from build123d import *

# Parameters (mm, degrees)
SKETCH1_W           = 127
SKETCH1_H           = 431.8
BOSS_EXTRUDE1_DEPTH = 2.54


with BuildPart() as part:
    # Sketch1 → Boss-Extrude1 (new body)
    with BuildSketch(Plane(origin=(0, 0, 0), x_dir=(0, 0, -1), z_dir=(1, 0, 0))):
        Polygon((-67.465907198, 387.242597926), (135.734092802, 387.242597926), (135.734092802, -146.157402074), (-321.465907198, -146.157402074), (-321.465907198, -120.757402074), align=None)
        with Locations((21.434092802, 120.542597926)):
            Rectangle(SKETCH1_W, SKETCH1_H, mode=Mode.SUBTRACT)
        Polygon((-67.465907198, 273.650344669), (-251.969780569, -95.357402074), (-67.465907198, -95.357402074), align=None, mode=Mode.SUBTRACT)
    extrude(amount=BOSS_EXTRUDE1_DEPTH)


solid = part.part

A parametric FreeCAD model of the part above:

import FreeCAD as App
import Part
import Sketcher
Q = App.Units.Quantity


def add_polygon(sketch, points):
    """Adds a closed chain of lines whose ends are joined by coincident constraints."""
    first, n = sketch.GeometryCount, len(points)
    for a, b in zip(points, points[1:] + points[:1]):
        sketch.addGeometry(Part.LineSegment(App.Vector(*a, 0), App.Vector(*b, 0)), False)
    for i in range(n):
        sketch.addConstraint(Sketcher.Constraint("Coincident", first + i, 2, first + (i + 1) % n, 1))

doc = App.newDocument("Part")
body = doc.addObject("PartDesign::Body", "Body")

sketch1 = body.newObject("Sketcher::SketchObject", "Sketch")
sketch1.AttachmentSupport = (doc.getObject("YZ_Plane"), [""])
sketch1.MapMode = "FlatFace"
add_polygon(sketch1, [(387.242598, -135.734093), (387.242598, 67.465907), (-120.757402, 321.465907), (-146.157402, 321.465907), (-146.157402, -135.734093)])
add_polygon(sketch1, [(273.650345, 67.465907), (-95.357402, 67.465907), (-95.357402, 251.969781)])
add_polygon(sketch1, [(-95.357402, 42.065907), (336.442598, 42.065907), (336.442598, -84.934093), (-95.357402, -84.934093)])
sketch1.addConstraint([
    Sketcher.Constraint("Vertical", 0),
    Sketcher.Constraint("Horizontal", 2),
    Sketcher.Constraint("Vertical", 3),
    Sketcher.Constraint("Horizontal", 4),
    Sketcher.Constraint("Horizontal", 5),
    Sketcher.Constraint("Vertical", 6),
    Sketcher.Constraint("Horizontal", 8),
    Sketcher.Constraint("Vertical", 9),
    Sketcher.Constraint("Horizontal", 10),
    Sketcher.Constraint("Vertical", 11),
    Sketcher.Constraint("Parallel", 1, 7),
    Sketcher.Constraint("Horizontal", 0, 2, 5, 2),
    Sketcher.Constraint("Vertical", 6, 2, 10, 2),
    Sketcher.Constraint("DistanceX", 2, 2, 2, 1, Q("1 in")),
    Sketcher.Constraint("DistanceX", 4, 1, 4, 2, Q("21 in")),
    Sketcher.Constraint("DistanceX", 8, 1, 8, 2, Q("17 in")),
    Sketcher.Constraint("DistanceY", 0, 1, 0, 2, Q("8 in")),
    Sketcher.Constraint("DistanceY", 3, 2, 3, 1, Q("18 in")),
    Sketcher.Constraint("DistanceY", 9, 2, 9, 1, Q("5 in")),
    Sketcher.Constraint("DistanceX", 3, 2, 5, 2, Q("2 in")),
    Sketcher.Constraint("DistanceY", 8, 2, 0, 2, Q("1 in")),
    Sketcher.Constraint("DistanceX", 5, 2, 5, 1, 369.007747),
    Sketcher.Constraint("DistanceY", -1, 1, 6, 2, 251.969781),
    Sketcher.Constraint("DistanceX", -1, 1, 0, 2, 387.242598),
])
pad1 = body.newObject("PartDesign::Pad", "Pad")
pad1.Profile = sketch1
pad1.Length = Q("0.1 in")

doc.recompute()
